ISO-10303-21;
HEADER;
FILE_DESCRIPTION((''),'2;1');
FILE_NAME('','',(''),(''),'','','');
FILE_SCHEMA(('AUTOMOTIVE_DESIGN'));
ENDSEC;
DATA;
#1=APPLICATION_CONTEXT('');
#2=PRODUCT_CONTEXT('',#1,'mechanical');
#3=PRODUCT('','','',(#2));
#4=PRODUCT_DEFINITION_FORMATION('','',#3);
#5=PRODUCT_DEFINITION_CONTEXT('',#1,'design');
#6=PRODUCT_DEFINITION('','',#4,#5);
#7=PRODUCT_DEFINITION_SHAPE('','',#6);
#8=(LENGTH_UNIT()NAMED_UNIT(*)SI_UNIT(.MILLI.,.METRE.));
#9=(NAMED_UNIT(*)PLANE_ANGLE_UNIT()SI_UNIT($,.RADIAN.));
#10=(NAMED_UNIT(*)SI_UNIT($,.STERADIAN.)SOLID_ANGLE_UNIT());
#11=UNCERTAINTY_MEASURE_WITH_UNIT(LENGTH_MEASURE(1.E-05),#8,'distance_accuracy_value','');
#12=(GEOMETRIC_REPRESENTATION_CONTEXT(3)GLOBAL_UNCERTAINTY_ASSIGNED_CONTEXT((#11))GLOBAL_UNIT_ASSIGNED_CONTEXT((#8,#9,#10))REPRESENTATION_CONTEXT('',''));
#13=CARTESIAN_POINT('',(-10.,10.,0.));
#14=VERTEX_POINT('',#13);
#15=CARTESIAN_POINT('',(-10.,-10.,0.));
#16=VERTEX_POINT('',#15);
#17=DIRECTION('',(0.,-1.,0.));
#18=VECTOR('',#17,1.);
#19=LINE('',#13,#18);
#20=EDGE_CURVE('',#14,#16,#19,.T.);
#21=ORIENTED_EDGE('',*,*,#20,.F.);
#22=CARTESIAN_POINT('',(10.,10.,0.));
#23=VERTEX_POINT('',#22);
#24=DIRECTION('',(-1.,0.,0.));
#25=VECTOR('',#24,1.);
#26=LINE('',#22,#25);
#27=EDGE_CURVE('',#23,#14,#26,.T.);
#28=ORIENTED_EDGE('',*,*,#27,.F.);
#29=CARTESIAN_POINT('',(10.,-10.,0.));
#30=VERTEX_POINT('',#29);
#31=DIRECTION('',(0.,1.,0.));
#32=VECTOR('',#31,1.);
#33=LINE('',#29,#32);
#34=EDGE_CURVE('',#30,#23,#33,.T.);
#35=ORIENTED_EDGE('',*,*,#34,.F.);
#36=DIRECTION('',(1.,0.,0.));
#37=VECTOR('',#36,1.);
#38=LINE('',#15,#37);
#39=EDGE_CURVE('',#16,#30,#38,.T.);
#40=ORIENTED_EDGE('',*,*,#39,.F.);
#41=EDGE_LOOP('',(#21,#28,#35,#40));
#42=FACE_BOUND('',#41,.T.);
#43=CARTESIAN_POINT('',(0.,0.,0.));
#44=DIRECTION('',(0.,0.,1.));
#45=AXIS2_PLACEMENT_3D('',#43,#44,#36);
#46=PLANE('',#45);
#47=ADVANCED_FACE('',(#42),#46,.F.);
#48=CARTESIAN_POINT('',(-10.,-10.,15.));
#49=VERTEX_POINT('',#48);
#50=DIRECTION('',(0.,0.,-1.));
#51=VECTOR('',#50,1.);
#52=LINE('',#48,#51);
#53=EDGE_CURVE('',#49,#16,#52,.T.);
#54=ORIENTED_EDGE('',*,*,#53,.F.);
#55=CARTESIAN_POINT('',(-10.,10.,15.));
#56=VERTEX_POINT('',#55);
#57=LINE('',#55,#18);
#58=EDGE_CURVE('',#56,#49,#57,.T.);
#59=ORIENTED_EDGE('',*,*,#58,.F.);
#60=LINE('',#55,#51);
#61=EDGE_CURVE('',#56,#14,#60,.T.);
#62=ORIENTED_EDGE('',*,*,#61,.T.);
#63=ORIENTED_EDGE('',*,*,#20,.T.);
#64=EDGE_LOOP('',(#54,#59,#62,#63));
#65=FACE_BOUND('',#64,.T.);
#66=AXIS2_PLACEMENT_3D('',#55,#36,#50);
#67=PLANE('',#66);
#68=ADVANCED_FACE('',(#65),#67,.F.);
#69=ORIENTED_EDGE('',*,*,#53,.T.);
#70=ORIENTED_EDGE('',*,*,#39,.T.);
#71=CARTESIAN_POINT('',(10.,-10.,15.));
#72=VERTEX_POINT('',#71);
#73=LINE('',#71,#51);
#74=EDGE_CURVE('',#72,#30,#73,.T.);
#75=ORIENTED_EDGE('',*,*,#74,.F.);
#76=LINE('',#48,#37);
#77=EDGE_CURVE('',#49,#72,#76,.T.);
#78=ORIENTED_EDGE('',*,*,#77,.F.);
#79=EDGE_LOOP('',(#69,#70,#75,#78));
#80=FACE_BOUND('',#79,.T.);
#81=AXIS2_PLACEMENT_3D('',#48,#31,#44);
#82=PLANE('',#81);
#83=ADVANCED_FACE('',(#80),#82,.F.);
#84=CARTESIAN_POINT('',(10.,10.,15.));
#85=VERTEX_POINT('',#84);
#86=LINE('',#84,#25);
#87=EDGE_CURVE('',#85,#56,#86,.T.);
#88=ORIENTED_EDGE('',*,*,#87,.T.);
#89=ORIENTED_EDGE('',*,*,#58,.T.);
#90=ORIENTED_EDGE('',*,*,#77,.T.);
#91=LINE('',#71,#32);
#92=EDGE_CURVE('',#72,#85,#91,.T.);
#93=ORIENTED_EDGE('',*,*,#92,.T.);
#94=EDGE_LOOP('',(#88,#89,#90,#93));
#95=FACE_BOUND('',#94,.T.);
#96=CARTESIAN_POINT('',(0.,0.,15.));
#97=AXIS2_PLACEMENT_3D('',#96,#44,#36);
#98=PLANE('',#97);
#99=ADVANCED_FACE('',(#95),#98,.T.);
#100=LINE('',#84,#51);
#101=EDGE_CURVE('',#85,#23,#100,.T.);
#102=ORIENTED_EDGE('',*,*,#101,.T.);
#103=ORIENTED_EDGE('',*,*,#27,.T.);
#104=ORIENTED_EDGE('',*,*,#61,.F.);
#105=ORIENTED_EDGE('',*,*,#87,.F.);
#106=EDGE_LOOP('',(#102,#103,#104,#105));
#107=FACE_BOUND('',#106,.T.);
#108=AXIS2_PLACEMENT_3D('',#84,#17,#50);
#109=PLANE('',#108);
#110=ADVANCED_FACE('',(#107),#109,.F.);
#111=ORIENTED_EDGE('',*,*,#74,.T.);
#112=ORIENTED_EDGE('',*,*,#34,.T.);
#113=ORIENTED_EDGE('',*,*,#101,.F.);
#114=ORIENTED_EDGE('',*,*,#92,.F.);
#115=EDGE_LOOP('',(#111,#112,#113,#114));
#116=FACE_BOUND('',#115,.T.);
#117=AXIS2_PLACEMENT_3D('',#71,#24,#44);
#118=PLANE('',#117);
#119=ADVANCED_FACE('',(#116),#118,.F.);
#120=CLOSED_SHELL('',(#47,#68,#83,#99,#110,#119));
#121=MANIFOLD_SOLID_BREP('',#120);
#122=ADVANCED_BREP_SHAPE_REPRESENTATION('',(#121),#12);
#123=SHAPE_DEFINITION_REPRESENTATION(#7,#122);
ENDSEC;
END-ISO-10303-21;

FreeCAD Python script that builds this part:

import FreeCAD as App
import Part
import Sketcher
from FreeCAD import Vector


def add_polygon(sketch, points):
    """Adds a closed chain of lines whose ends are joined by coincident constraints."""
    first, n = sketch.GeometryCount, len(points)
    for a, b in zip(points, points[1:] + points[:1]):
        sketch.addGeometry(Part.LineSegment(App.Vector(*a, 0), App.Vector(*b, 0)), False)
    for i in range(n):
        sketch.addConstraint(Sketcher.Constraint("Coincident", first + i, 2, first + (i + 1) % n, 1))

doc = App.newDocument("Part")
body = doc.addObject("PartDesign::Body", "Body")

# Sketch on XY plane
sketch1 = body.newObject("Sketcher::SketchObject", "Sketch")
sketch1.AttachmentSupport = (doc.getObject("XY_Plane"), [""])
sketch1.MapMode = "FlatFace"
add_polygon(sketch1, [(-10, 10), (-10, -10), (10, -10), (10, 10)])  # lines 0-3
sketch1.addConstraint([
    Sketcher.Constraint("Vertical", 0),
    Sketcher.Constraint("Horizontal", 1),
    Sketcher.Constraint("Vertical", 2),
    Sketcher.Constraint("Horizontal", 3),
    Sketcher.Constraint("Symmetric", 0, 2, 2, 2, -1, 1),
    Sketcher.Constraint("Equal", 3, 0),
    Sketcher.Constraint("DistanceX", 1, 1, 1, 2, 20.0),
])
pad1 = body.newObject("PartDesign::Pad", "Pad")
pad1.Profile = sketch1
pad1.Length = 15

doc.recompute()
